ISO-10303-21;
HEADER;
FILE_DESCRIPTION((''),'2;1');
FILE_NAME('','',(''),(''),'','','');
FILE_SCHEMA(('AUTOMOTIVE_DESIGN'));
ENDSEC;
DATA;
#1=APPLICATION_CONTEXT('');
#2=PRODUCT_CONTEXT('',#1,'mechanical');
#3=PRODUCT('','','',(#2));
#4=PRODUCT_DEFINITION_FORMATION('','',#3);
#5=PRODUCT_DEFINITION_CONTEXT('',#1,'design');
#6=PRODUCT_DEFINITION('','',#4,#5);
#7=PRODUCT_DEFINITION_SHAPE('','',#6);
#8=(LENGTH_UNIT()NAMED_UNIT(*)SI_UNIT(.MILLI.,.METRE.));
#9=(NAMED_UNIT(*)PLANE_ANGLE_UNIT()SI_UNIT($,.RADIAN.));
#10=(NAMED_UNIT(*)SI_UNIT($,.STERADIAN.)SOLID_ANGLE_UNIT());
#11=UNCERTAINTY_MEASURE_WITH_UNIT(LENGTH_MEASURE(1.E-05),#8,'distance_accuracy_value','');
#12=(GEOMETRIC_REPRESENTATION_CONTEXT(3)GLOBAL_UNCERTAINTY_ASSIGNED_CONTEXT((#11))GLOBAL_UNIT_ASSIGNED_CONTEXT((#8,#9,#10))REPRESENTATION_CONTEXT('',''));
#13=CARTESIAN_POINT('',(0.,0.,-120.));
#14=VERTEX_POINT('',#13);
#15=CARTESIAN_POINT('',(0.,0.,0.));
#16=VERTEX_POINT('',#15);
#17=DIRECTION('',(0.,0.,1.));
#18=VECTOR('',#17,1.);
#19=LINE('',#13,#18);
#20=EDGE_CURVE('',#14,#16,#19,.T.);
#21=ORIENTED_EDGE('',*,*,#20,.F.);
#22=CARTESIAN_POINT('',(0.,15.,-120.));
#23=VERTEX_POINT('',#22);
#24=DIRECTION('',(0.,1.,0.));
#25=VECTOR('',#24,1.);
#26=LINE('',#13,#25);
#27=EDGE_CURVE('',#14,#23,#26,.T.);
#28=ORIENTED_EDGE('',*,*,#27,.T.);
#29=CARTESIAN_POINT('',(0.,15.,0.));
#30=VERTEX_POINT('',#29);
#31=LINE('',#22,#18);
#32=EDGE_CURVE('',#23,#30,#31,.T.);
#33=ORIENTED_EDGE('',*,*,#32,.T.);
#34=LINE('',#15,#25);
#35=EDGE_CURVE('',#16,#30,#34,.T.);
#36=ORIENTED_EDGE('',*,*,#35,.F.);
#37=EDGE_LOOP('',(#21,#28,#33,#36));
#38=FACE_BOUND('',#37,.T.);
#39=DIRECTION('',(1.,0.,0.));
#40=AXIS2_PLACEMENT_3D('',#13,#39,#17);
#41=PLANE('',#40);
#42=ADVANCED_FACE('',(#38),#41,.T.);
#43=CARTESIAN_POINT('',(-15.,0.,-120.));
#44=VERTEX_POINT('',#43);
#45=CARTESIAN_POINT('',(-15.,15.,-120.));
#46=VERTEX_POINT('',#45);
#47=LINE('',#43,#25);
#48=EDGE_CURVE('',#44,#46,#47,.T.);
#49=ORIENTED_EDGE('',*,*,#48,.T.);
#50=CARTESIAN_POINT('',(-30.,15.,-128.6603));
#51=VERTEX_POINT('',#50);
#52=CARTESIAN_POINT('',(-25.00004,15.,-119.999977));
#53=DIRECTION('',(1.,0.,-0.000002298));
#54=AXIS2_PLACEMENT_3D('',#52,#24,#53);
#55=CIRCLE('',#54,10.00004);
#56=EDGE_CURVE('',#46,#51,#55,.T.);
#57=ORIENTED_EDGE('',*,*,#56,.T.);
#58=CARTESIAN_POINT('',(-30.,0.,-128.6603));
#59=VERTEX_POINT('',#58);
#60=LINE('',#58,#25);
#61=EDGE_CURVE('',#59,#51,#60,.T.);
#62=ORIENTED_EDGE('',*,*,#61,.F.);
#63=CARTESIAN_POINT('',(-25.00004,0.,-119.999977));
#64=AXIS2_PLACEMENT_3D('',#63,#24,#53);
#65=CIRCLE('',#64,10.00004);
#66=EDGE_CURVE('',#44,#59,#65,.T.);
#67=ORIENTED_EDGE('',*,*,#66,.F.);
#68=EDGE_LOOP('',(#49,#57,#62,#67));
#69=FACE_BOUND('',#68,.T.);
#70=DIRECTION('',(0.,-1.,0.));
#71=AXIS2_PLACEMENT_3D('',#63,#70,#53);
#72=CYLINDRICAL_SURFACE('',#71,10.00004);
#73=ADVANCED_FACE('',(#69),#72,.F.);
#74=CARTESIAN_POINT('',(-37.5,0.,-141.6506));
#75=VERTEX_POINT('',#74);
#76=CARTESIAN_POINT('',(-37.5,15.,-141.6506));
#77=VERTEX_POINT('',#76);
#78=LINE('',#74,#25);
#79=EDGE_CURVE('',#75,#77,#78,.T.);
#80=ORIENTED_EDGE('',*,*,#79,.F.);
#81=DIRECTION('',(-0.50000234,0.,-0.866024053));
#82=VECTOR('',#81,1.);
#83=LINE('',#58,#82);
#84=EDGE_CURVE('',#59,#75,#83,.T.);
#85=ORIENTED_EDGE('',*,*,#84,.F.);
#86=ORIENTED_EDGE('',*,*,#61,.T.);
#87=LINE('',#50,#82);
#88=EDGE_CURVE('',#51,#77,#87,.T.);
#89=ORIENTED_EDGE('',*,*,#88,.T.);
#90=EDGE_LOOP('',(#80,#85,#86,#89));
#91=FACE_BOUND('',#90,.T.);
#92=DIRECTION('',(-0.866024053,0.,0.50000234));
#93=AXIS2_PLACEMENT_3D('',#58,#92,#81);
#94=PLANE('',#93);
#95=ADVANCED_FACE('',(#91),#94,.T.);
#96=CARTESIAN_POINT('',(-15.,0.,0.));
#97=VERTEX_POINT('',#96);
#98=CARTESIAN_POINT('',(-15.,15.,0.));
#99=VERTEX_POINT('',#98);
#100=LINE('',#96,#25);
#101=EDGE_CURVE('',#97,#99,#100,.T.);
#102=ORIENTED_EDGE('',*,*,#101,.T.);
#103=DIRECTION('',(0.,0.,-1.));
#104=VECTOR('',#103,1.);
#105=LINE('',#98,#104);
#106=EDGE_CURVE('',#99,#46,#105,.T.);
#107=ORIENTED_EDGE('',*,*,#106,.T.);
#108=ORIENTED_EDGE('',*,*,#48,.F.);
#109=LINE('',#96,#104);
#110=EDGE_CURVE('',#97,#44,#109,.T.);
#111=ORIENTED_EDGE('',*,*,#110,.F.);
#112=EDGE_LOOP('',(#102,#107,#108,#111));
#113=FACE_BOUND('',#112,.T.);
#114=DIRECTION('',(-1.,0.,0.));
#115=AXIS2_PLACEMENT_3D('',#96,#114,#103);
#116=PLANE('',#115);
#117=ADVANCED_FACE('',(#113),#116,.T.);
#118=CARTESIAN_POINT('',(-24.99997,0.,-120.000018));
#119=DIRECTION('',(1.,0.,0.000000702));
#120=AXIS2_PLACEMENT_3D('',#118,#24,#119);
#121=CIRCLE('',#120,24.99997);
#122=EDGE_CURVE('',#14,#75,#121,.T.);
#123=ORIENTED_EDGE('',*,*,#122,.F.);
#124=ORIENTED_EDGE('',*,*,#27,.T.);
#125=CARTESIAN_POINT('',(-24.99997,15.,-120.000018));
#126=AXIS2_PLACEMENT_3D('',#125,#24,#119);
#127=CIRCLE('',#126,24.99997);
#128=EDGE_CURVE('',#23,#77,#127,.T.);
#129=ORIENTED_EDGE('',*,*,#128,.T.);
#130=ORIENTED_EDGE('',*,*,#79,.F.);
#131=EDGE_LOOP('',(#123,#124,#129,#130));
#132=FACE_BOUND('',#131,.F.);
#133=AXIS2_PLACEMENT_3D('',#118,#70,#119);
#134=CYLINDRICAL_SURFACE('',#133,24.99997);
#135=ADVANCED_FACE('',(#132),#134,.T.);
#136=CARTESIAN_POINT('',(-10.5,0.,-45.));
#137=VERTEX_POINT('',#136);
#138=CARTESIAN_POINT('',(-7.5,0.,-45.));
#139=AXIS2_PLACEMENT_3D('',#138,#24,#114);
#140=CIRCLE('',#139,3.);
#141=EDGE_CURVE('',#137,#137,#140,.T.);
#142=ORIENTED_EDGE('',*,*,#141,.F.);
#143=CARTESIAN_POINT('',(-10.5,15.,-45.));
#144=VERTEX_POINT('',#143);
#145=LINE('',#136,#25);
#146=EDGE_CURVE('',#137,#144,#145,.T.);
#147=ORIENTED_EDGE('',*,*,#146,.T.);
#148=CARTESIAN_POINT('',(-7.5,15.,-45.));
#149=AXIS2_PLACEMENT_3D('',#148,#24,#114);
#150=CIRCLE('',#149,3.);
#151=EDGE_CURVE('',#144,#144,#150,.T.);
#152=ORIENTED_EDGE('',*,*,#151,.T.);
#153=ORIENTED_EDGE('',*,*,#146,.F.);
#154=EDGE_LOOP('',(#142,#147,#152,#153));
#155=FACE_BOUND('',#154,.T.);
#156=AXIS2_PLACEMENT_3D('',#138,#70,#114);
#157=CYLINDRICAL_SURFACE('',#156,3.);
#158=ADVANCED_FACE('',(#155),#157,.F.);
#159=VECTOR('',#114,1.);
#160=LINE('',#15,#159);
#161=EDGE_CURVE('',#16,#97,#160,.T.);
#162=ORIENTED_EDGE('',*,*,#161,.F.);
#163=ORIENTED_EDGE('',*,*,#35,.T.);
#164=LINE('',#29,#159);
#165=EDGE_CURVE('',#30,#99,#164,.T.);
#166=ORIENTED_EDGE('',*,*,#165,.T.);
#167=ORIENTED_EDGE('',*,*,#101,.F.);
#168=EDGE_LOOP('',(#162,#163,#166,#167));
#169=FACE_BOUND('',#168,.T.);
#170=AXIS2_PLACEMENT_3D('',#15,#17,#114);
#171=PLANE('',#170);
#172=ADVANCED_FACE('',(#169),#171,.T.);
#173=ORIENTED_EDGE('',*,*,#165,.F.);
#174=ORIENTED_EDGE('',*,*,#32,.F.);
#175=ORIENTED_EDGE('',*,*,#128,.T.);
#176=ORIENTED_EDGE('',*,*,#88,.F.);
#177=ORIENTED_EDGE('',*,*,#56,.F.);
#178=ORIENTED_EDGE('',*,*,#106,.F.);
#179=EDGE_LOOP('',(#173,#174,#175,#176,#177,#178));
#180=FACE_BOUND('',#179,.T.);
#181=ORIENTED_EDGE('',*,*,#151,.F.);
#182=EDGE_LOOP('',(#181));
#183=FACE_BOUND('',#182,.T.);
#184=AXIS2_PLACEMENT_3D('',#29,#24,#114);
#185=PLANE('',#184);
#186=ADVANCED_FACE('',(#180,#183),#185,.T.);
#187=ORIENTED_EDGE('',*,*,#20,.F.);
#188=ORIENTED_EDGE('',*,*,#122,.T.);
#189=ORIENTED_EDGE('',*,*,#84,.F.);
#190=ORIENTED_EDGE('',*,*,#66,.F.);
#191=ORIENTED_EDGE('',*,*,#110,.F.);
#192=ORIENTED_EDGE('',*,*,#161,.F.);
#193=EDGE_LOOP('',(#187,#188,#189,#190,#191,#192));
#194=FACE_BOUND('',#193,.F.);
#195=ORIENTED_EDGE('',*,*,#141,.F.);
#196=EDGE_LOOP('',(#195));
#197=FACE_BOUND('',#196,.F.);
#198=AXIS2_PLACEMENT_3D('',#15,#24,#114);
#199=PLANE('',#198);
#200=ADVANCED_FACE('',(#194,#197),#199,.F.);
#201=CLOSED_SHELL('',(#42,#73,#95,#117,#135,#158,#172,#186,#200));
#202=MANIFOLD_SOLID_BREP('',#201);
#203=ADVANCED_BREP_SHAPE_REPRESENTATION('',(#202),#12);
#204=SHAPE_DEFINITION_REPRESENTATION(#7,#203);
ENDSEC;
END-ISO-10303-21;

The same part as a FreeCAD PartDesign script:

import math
import FreeCAD as App
import Part
import Sketcher

V = App.Vector
Q = App.Units.Quantity

doc = App.newDocument("Part")
body = doc.addObject("PartDesign::Body", "Body")

sketch1 = doc.addObject("Sketcher::SketchObject", "Sketch")
body.addObject(sketch1)
sketch1.AttachmentSupport = (doc.XZ_Plane, [""])
sketch1.MapMode = "FlatFace"
sketch1.addGeometry(Part.LineSegment(V(-15, 0, 0), V(0, 0, 0)), False)
sketch1.addGeometry(Part.LineSegment(V(0, 0, 0), V(0, -120, 0)), False)
sketch1.addGeometry(Part.ArcOfCircle(Part.Circle(V(-25, -120, 0), V(0, 0, 1), 25), math.radians(-120), math.radians(0)), False)
sketch1.addGeometry(Part.LineSegment(V(-37.5, -141.7, 0), V(-30, -128.7, 0)), False)
sketch1.addGeometry(Part.ArcOfCircle(Part.Circle(V(-25, -120, 0), V(0, 0, 1), 10), math.radians(-120), math.radians(0)), False)
sketch1.addGeometry(Part.LineSegment(V(-15, -120, 0), V(-15, 0, 0)), False)
sketch1.addGeometry(Part.Circle(V(-7.5, -45, 0), V(0, 0, 1), 3), False)
sketch1.addConstraint(Sketcher.Constraint("Coincident", 0, 2, 1, 1))
sketch1.addConstraint(Sketcher.Constraint("Tangent", 1, 2, 2, 2))
sketch1.addConstraint(Sketcher.Constraint("Coincident", 2, 1, 3, 1))
sketch1.addConstraint(Sketcher.Constraint("Coincident", 3, 2, 4, 1))
sketch1.addConstraint(Sketcher.Constraint("Tangent", 4, 2, 5, 1))
sketch1.addConstraint(Sketcher.Constraint("Coincident", 5, 2, 0, 1))
sketch1.addConstraint(Sketcher.Constraint("Horizontal", 0))
sketch1.addConstraint(Sketcher.Constraint("Vertical", 1))
sketch1.addConstraint(Sketcher.Constraint("Vertical", 5))
sketch1.addConstraint(Sketcher.Constraint("Coincident", 0, 2, -1, 1))
sketch1.addConstraint(Sketcher.Constraint("Coincident", 4, 3, 2, 3))
sketch1.addConstraint(Sketcher.Constraint("Diameter", 6, 6.0))
sketch1.addConstraint(Sketcher.Constraint("Radius", 4, 10.0))
sketch1.addConstraint(Sketcher.Constraint("DistanceX", 0, 1, 0, 2, 15.0))
sketch1.addConstraint(Sketcher.Constraint("DistanceY", 1, 2, 1, 1, 120.0))
sketch1.addConstraint(Sketcher.Constraint("Angle", 3, Q("59.9998 deg")))
sketch1.addConstraint(Sketcher.Constraint("DistanceY", 6, 3, -1, 1, 45.0))
sketch1.addConstraint(Sketcher.Constraint("DistanceX", 3, 2, 4, 2, 15.0))
sketch1.addConstraint(Sketcher.Constraint("DistanceX", 6, 3, -1, 1, 7.5))
pad1 = doc.addObject("PartDesign::Pad", "Pad")
body.addObject(pad1)
pad1.Profile = sketch1
pad1.Length = 15
pad1.Reversed = True

doc.recompute()
